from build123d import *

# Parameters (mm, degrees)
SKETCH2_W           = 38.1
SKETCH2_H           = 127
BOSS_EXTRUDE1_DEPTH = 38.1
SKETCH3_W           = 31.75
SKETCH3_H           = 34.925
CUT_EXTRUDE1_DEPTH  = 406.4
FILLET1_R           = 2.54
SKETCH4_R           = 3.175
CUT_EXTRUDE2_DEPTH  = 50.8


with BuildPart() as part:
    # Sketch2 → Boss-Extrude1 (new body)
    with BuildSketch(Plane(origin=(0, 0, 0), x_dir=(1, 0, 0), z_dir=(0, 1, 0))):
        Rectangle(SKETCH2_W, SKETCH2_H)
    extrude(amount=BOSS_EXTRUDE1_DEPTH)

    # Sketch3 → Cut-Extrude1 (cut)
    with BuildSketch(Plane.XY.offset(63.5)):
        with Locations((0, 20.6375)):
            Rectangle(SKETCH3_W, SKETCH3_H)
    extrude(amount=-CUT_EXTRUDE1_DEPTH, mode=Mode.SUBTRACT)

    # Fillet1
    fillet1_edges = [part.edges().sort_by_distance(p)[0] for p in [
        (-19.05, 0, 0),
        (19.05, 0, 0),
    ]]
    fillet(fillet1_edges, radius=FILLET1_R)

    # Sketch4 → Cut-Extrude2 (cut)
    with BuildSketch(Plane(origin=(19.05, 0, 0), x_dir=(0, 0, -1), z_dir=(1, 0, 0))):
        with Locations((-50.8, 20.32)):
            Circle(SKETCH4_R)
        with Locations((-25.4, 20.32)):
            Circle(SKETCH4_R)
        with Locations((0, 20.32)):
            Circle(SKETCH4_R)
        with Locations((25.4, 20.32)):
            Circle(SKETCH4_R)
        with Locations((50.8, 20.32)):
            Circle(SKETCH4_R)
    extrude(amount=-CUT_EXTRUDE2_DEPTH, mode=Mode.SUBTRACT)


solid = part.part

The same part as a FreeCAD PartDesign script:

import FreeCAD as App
import Part
import Sketcher
from FreeCAD import Vector
Q = App.Units.Quantity


def edges_at(feature, points):
    """Names of the edges that pass closest to the given points."""
    edges = feature.Shape.Edges
    near = lambda p: min(range(len(edges)), key=lambda i: edges[i].distToShape(Part.Vertex(*p))[0])
    return sorted({f"Edge{near(p) + 1}" for p in points})


def add_polygon(sketch, points):
    """Adds a closed chain of lines whose ends are joined by coincident constraints."""
    first, n = sketch.GeometryCount, len(points)
    for a, b in zip(points, points[1:] + points[:1]):
        sketch.addGeometry(Part.LineSegment(App.Vector(*a, 0), App.Vector(*b, 0)), False)
    for i in range(n):
        sketch.addConstraint(Sketcher.Constraint("Coincident", first + i, 2, first + (i + 1) % n, 1))

doc = App.newDocument("Part")
params = doc.addObject("Spreadsheet::Sheet", "Params")
for row, (alias, value) in enumerate([
    ("sketch1_height", "5 in"),
    ("sketch1_width", "1.5 in"),
    ("pad1_length", "1.5 in"),
    ("sketch2_width", "1.25 in"),
    ("sketch2_height", "1.375 in"),
    ("pocket1_length", "16 in"),
    ("fillet_radius", "0.1 in"),
    ("sketch3_diameter", "0.25 in"),
    ("pocket2_length", "2 in"),
], start=1):
    params.set(f"A{row}", alias)
    params.set(f"B{row}", "=" + value)
    params.setAlias(f"B{row}", alias)

body = doc.addObject("PartDesign::Body", "Body")

# Sketch on XZ plane
sketch1 = body.newObject("Sketcher::SketchObject", "Sketch")
sketch1.AttachmentSupport = (doc.getObject("XZ_Plane"), [""])
sketch1.MapMode = "FlatFace"
add_polygon(sketch1, [(-19, -64), (-19, 64), (19, 64), (19, -64)])  # lines 0-3
sketch1.addConstraint(Sketcher.Constraint("Vertical", 0))
sketch1.addConstraint(Sketcher.Constraint("Horizontal", 1))
sketch1.addConstraint(Sketcher.Constraint("Vertical", 2))
sketch1.addConstraint(Sketcher.Constraint("Horizontal", 3))
sketch1.addConstraint(Sketcher.Constraint("Symmetric", 0, 2, 2, 2, -1, 1))
sketch1.addConstraint(Sketcher.Constraint("DistanceY", 0, 1, 0, 2, Q("5 in")))
sketch1.addConstraint(Sketcher.Constraint("DistanceX", 1, 1, 1, 2, Q("1.5 in")))
sketch1.setExpression("Constraints[9]", "Params.sketch1_height")
sketch1.setExpression("Constraints[10]", "Params.sketch1_width")
pad1 = body.newObject("PartDesign::Pad", "Pad")
pad1.Profile = sketch1
pad1.setExpression("Length", "Params.pad1_length")
pad1.Reversed = True

# Sketch on XY plane
sketch2 = body.newObject("Sketcher::SketchObject", "Sketch001")
sketch2.AttachmentSupport = (doc.getObject("XY_Plane"), [""])
sketch2.MapMode = "FlatFace"
sketch2.AttachmentOffset = App.Placement(Vector(0, 0, 2.5 * 25.4), App.Rotation())
add_polygon(sketch2, [(-16, 38), (-16, 3), (16, 3), (16, 38)])  # lines 0-3
sketch2.addConstraint(Sketcher.Constraint("Vertical", 0))
sketch2.addConstraint(Sketcher.Constraint("Horizontal", 1))
sketch2.addConstraint(Sketcher.Constraint("Vertical", 2))
sketch2.addConstraint(Sketcher.Constraint("Horizontal", 3))
sketch2.addConstraint(Sketcher.Constraint("DistanceX", 1, 1, 1, 2, Q("1.25 in")))
sketch2.addConstraint(Sketcher.Constraint("DistanceY", -1, 1, 2, 2, Q("1.5 in")))
sketch2.addConstraint(Sketcher.Constraint("DistanceY", 0, 2, 0, 1, Q("1.375 in")))
sketch2.addConstraint(Sketcher.Constraint("DistanceX", 0, 2, -1, 1, Q("0.625 in")))
sketch2.setExpression("Constraints[8]", "Params.sketch2_width")
sketch2.setExpression("Constraints[10]", "Params.sketch2_height")
pocket1 = body.newObject("PartDesign::Pocket", "Pocket")
pocket1.Profile = sketch2
pocket1.setExpression("Length", "Params.pocket1_length")
doc.recompute()

fillet = body.newObject("PartDesign::Fillet", "Fillet")
fillet.Base = (pocket1, edges_at(pocket1, [(-19.05, 0, 0), (19.05, 0, 0)]))
fillet.setExpression("Radius", "Params.fillet_radius")

# Sketch on YZ plane
sketch3 = body.newObject("Sketcher::SketchObject", "Sketch002")
sketch3.AttachmentSupport = (doc.getObject("YZ_Plane"), [""])
sketch3.MapMode = "FlatFace"
sketch3.AttachmentOffset = App.Placement(Vector(0, 0, 0.75 * 25.4), App.Rotation())
sketch3.addGeometry(Part.Circle(Vector(20.3, 50.8, 0), Vector(0, 0, 1), 3.2), False)
sketch3.addGeometry(Part.Circle(Vector(20.3, 25.4, 0), Vector(0, 0, 1), 3.2), False)
sketch3.addGeometry(Part.Circle(Vector(20.3, 0, 0), Vector(0, 0, 1), 3.2), False)
sketch3.addGeometry(Part.Circle(Vector(20.3, -25.4, 0), Vector(0, 0, 1), 3.2), False)
sketch3.addGeometry(Part.Circle(Vector(20.3, -50.8, 0), Vector(0, 0, 1), 3.2), False)
sketch3.addConstraint(Sketcher.Constraint("Equal", 0, 1))
sketch3.addConstraint(Sketcher.Constraint("Equal", 1, 2))
sketch3.addConstraint(Sketcher.Constraint("Equal", 2, 3))
sketch3.addConstraint(Sketcher.Constraint("Equal", 3, 4))
sketch3.addConstraint(Sketcher.Constraint("Symmetric", 1, 3, 3, 3, -1))
sketch3.addConstraint(Sketcher.Constraint("Symmetric", 0, 3, 4, 3, -1))
sketch3.addConstraint(Sketcher.Constraint("PointOnObject", 2, 3, -1))
sketch3.addConstraint(Sketcher.Constraint("Vertical", 0, 3, 1, 3))
sketch3.addConstraint(Sketcher.Constraint("Vertical", 1, 3, 2, 3))
sketch3.addConstraint(Sketcher.Constraint("Diameter", 0, Q("0.25 in")))
sketch3.addConstraint(Sketcher.Constraint("DistanceY", -1, 1, 0, 3, Q("2 in")))
sketch3.addConstraint(Sketcher.Constraint("DistanceY", -1, 1, 1, 3, Q("1 in")))
sketch3.addConstraint(Sketcher.Constraint("DistanceX", -1, 1, 0, 3, Q("0.8 in")))
sketch3.setExpression("Constraints[9]", "Params.sketch3_diameter")
pocket2 = body.newObject("PartDesign::Pocket", "Pocket001")
pocket2.Profile = sketch3
pocket2.setExpression("Length", "Params.pocket2_length")

doc.recompute()
